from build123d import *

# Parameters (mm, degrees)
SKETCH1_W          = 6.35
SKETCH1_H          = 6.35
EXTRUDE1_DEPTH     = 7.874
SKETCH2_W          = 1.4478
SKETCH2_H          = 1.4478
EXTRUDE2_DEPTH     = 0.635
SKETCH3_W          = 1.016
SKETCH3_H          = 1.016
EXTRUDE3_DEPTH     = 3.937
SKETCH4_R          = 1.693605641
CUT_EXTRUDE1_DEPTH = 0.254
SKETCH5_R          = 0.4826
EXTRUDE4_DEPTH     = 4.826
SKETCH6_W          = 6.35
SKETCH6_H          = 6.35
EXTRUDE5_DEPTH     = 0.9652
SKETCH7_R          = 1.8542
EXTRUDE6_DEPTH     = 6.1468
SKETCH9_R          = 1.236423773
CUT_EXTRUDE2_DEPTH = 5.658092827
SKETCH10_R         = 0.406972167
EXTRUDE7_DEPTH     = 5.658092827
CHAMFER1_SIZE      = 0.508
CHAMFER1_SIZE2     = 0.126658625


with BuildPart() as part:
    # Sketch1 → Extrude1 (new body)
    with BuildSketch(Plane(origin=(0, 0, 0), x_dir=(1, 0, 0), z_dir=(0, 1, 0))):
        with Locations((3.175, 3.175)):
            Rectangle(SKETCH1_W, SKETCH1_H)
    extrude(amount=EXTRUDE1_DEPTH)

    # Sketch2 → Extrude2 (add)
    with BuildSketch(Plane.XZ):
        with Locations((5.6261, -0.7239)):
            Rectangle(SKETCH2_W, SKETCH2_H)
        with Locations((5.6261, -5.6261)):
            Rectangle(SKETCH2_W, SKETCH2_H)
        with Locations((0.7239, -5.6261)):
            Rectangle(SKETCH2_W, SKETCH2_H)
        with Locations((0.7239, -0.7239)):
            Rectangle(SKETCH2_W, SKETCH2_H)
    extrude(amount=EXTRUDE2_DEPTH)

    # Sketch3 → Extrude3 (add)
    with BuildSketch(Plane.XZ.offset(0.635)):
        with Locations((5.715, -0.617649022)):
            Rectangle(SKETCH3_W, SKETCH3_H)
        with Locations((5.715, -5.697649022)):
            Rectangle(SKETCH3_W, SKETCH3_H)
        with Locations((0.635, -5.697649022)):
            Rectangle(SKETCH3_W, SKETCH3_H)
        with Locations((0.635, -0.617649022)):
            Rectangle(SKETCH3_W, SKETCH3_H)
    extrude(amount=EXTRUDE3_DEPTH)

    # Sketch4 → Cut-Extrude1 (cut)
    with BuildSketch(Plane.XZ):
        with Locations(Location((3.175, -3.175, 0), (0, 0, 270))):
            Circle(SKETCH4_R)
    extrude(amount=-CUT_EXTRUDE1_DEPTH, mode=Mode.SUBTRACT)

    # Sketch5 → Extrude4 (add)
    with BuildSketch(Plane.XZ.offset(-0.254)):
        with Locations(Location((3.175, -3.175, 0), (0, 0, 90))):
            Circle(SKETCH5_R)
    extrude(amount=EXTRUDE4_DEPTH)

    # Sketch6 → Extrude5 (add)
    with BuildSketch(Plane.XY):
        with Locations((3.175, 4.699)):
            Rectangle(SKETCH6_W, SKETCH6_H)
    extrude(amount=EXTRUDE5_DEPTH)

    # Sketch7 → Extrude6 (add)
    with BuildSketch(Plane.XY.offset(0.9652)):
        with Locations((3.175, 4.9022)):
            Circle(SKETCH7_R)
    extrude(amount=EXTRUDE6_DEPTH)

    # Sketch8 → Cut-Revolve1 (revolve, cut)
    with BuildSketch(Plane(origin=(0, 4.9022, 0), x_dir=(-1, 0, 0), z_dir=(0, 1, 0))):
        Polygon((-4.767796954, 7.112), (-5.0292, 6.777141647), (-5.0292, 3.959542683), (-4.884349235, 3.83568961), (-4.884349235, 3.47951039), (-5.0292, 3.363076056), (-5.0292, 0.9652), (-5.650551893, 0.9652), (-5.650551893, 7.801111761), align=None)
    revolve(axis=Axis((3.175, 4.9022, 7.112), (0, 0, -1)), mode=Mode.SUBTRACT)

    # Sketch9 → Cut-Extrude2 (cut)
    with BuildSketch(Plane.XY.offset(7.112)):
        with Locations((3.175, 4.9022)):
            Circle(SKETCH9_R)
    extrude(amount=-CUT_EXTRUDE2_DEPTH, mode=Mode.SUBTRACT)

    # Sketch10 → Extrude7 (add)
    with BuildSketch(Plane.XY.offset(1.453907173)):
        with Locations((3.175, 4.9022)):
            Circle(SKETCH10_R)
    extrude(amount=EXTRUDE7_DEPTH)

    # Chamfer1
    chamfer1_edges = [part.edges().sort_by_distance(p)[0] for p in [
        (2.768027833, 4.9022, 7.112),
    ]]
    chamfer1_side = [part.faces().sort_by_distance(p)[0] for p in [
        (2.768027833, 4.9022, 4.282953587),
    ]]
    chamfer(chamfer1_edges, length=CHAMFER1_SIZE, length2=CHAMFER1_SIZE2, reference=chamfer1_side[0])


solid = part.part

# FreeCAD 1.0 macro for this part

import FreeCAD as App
import Part
import Sketcher
Q = App.Units.Quantity


def edges_at(feature, points):
    """Names of the edges that pass closest to the given points."""
    edges = feature.Shape.Edges
    near = lambda p: min(range(len(edges)), key=lambda i: edges[i].distToShape(Part.Vertex(*p))[0])
    return sorted({f"Edge{near(p) + 1}" for p in points})

doc = App.newDocument("Part")
body = doc.addObject("PartDesign::Body", "Body")

sketch1 = body.newObject("Sketcher::SketchObject", "Sketch")
sketch1.AttachmentSupport = (doc.getObject("XZ_Plane"), [""])
sketch1.MapMode = "FlatFace"
sketch1.addGeometry([
    Part.LineSegment(App.Vector(0, -6, 0), App.Vector(0, 0, 0)),
    Part.LineSegment(App.Vector(0, 0, 0), App.Vector(6, 0, 0)),
    Part.LineSegment(App.Vector(6, 0, 0), App.Vector(6, -6, 0)),
    Part.LineSegment(App.Vector(6, -6, 0), App.Vector(0, -6, 0)),
], False)
sketch1.addConstraint([
    Sketcher.Constraint("Coincident", 0, 2, 1, 1),
    Sketcher.Constraint("Coincident", 1, 2, 2, 1),
    Sketcher.Constraint("Coincident", 2, 2, 3, 1),
    Sketcher.Constraint("Coincident", 3, 2, 0, 1),
    Sketcher.Constraint("Vertical", 0),
    Sketcher.Constraint("Horizontal", 1),
    Sketcher.Constraint("Vertical", 2),
    Sketcher.Constraint("Horizontal", 3),
    Sketcher.Constraint("Coincident", 0, 2, -1, 1),
    Sketcher.Constraint("Equal", 3, 0),
    Sketcher.Constraint("DistanceX", 1, 1, 1, 2, Q("0.25 in")),
])
pad1 = body.newObject("PartDesign::Pad", "Pad")
pad1.Profile = sketch1
pad1.Length = Q("0.31 in")
pad1.Reversed = True

sketch2 = body.newObject("Sketcher::SketchObject", "Sketch001")
sketch2.AttachmentSupport = (doc.getObject("XZ_Plane"), [""])
sketch2.MapMode = "FlatFace"
sketch2.addGeometry([
    Part.LineSegment(App.Vector(4.9, 0, 0), App.Vector(4.9, -1.4, 0)),
    Part.LineSegment(App.Vector(4.9, -1.4, 0), App.Vector(6.3, -1.4, 0)),
    Part.LineSegment(App.Vector(6.3, -1.4, 0), App.Vector(6.3, 0, 0)),
    Part.LineSegment(App.Vector(6.3, 0, 0), App.Vector(4.9, 0, 0)),
    Part.LineSegment(App.Vector(4.9, -4.9, 0), App.Vector(4.9, -6.3, 0)),
    Part.LineSegment(App.Vector(4.9, -6.3, 0), App.Vector(6.3, -6.3, 0)),
    Part.LineSegment(App.Vector(6.3, -6.3, 0), App.Vector(6.3, -4.9, 0)),
    Part.LineSegment(App.Vector(6.3, -4.9, 0), App.Vector(4.9, -4.9, 0)),
    Part.LineSegment(App.Vector(0, -4.9, 0), App.Vector(0, -6.3, 0)),
    Part.LineSegment(App.Vector(0, -6.3, 0), App.Vector(1.4, -6.3, 0)),
    Part.LineSegment(App.Vector(1.4, -6.3, 0), App.Vector(1.4, -4.9, 0)),
    Part.LineSegment(App.Vector(1.4, -4.9, 0), App.Vector(0, -4.9, 0)),
    Part.LineSegment(App.Vector(0, 0, 0), App.Vector(0, -1.4, 0)),
    Part.LineSegment(App.Vector(0, -1.4, 0), App.Vector(1.4, -1.4, 0)),
    Part.LineSegment(App.Vector(1.4, -1.4, 0), App.Vector(1.4, 0, 0)),
    Part.LineSegment(App.Vector(1.4, 0, 0), App.Vector(0, 0, 0)),
], False)
sketch2.addConstraint([
    Sketcher.Constraint("Coincident", 0, 2, 1, 1),
    Sketcher.Constraint("Coincident", 1, 2, 2, 1),
    Sketcher.Constraint("Coincident", 2, 2, 3, 1),
    Sketcher.Constraint("Coincident", 3, 2, 0, 1),
    Sketcher.Constraint("Coincident", 4, 2, 5, 1),
    Sketcher.Constraint("Coincident", 5, 2, 6, 1),
    Sketcher.Constraint("Coincident", 6, 2, 7, 1),
    Sketcher.Constraint("Coincident", 7, 2, 4, 1),
    Sketcher.Constraint("Coincident", 8, 2, 9, 1),
    Sketcher.Constraint("Coincident", 9, 2, 10, 1),
    Sketcher.Constraint("Coincident", 10, 2, 11, 1),
    Sketcher.Constraint("Coincident", 11, 2, 8, 1),
    Sketcher.Constraint("Coincident", 12, 2, 13, 1),
    Sketcher.Constraint("Coincident", 13, 2, 14, 1),
    Sketcher.Constraint("Coincident", 14, 2, 15, 1),
    Sketcher.Constraint("Coincident", 15, 2, 12, 1),
    Sketcher.Constraint("Vertical", 0),
    Sketcher.Constraint("Horizontal", 1),
    Sketcher.Constraint("Vertical", 2),
    Sketcher.Constraint("Horizontal", 3),
    Sketcher.Constraint("Vertical", 4),
    Sketcher.Constraint("Horizontal", 5),
    Sketcher.Constraint("Vertical", 6),
    Sketcher.Constraint("Horizontal", 7),
    Sketcher.Constraint("Vertical", 8),
    Sketcher.Constraint("Horizontal", 9),
    Sketcher.Constraint("Vertical", 10),
    Sketcher.Constraint("Horizontal", 11),
    Sketcher.Constraint("Vertical", 12),
    Sketcher.Constraint("Horizontal", 13),
    Sketcher.Constraint("Vertical", 14),
    Sketcher.Constraint("Horizontal", 15),
    Sketcher.Constraint("Coincident", 15, 2, -1, 1),
    Sketcher.Constraint("PointOnObject", 2, 2, -1),
    Sketcher.Constraint("PointOnObject", 8, 2, -2),
    Sketcher.Constraint("Horizontal", 5, 2, 8, 2),
    Sketcher.Constraint("Horizontal", 7, 2, 10, 2),
    Sketcher.Constraint("Horizontal", 1, 2, 12, 2),
    Sketcher.Constraint("Vertical", 3, 2, 4, 2),
    Sketcher.Constraint("Vertical", 2, 2, 5, 2),
    Sketcher.Constraint("Vertical", 10, 2, 13, 2),
    Sketcher.Constraint("Equal", 7, 9),
    Sketcher.Constraint("Equal", 15, 0),
    Sketcher.Constraint("Equal", 2, 4),
    Sketcher.Constraint("DistanceX", 1, 1, 1, 2, Q("0.057 in")),
    Sketcher.Constraint("DistanceX", -1, 1, 1, 2, Q("0.25 in")),
    Sketcher.Constraint("DistanceY", 4, 2, -1, 1, Q("0.25 in")),
])
pad2 = body.newObject("PartDesign::Pad", "Pad001")
pad2.Profile = sketch2
pad2.Length = Q("0.025 in")

sketch3 = body.newObject("Sketcher::SketchObject", "Sketch002")
sketch3.AttachmentSupport = (doc.getObject("XZ_Plane"), [""])
sketch3.MapMode = "FlatFace"
sketch3.AttachmentOffset = App.Placement(App.Vector(0, 0, 0.025 * 25.4), App.Rotation())
sketch3.addGeometry([
    Part.LineSegment(App.Vector(5.2, -0.1, 0), App.Vector(5.2, -1.1, 0)),
    Part.LineSegment(App.Vector(5.2, -1.1, 0), App.Vector(6.2, -1.1, 0)),
    Part.LineSegment(App.Vector(6.2, -1.1, 0), App.Vector(6.2, -0.1, 0)),
    Part.LineSegment(App.Vector(6.2, -0.1, 0), App.Vector(5.2, -0.1, 0)),
    Part.LineSegment(App.Vector(5.2, -5.2, 0), App.Vector(5.2, -6.2, 0)),
    Part.LineSegment(App.Vector(5.2, -6.2, 0), App.Vector(6.2, -6.2, 0)),
    Part.LineSegment(App.Vector(6.2, -6.2, 0), App.Vector(6.2, -5.2, 0)),
    Part.LineSegment(App.Vector(6.2, -5.2, 0), App.Vector(5.2, -5.2, 0)),
    Part.LineSegment(App.Vector(0.1, -5.2, 0), App.Vector(0.1, -6.2, 0)),
    Part.LineSegment(App.Vector(0.1, -6.2, 0), App.Vector(1.1, -6.2, 0)),
    Part.LineSegment(App.Vector(1.1, -6.2, 0), App.Vector(1.1, -5.2, 0)),
    Part.LineSegment(App.Vector(1.1, -5.2, 0), App.Vector(0.1, -5.2, 0)),
    Part.LineSegment(App.Vector(0.1, -0.1, 0), App.Vector(0.1, -1.1, 0)),
    Part.LineSegment(App.Vector(0.1, -1.1, 0), App.Vector(1.1, -1.1, 0)),
    Part.LineSegment(App.Vector(1.1, -1.1, 0), App.Vector(1.1, -0.1, 0)),
    Part.LineSegment(App.Vector(1.1, -0.1, 0), App.Vector(0.1, -0.1, 0)),
], False)
sketch3.addConstraint([
    Sketcher.Constraint("Coincident", 0, 2, 1, 1),
    Sketcher.Constraint("Coincident", 1, 2, 2, 1),
    Sketcher.Constraint("Coincident", 2, 2, 3, 1),
    Sketcher.Constraint("Coincident", 3, 2, 0, 1),
    Sketcher.Constraint("Coincident", 4, 2, 5, 1),
    Sketcher.Constraint("Coincident", 5, 2, 6, 1),
    Sketcher.Constraint("Coincident", 6, 2, 7, 1),
    Sketcher.Constraint("Coincident", 7, 2, 4, 1),
    Sketcher.Constraint("Coincident", 8, 2, 9, 1),
    Sketcher.Constraint("Coincident", 9, 2, 10, 1),
    Sketcher.Constraint("Coincident", 10, 2, 11, 1),
    Sketcher.Constraint("Coincident", 11, 2, 8, 1),
    Sketcher.Constraint("Coincident", 12, 2, 13, 1),
    Sketcher.Constraint("Coincident", 13, 2, 14, 1),
    Sketcher.Constraint("Coincident", 14, 2, 15, 1),
    Sketcher.Constraint("Coincident", 15, 2, 12, 1),
    Sketcher.Constraint("Vertical", 0),
    Sketcher.Constraint("Horizontal", 1),
    Sketcher.Constraint("Vertical", 2),
    Sketcher.Constraint("Horizontal", 3),
    Sketcher.Constraint("Vertical", 4),
    Sketcher.Constraint("Horizontal", 5),
    Sketcher.Constraint("Vertical", 6),
    Sketcher.Constraint("Horizontal", 7),
    Sketcher.Constraint("Vertical", 8),
    Sketcher.Constraint("Horizontal", 9),
    Sketcher.Constraint("Vertical", 10),
    Sketcher.Constraint("Horizontal", 11),
    Sketcher.Constraint("Vertical", 12),
    Sketcher.Constraint("Horizontal", 13),
    Sketcher.Constraint("Vertical", 14),
    Sketcher.Constraint("Horizontal", 15),
    Sketcher.Constraint("Horizontal", 5, 2, 8, 2),
    Sketcher.Constraint("Horizontal", 7, 2, 10, 2),
    Sketcher.Constraint("Horizontal", 1, 2, 12, 2),
    Sketcher.Constraint("Horizontal", 3, 2, 14, 2),
    Sketcher.Constraint("Vertical", 3, 2, 4, 2),
    Sketcher.Constraint("Vertical", 2, 2, 5, 2),
    Sketcher.Constraint("Vertical", 11, 2, 12, 2),
    Sketcher.Constraint("Vertical", 10, 2, 13, 2),
    Sketcher.Constraint("Equal", 7, 9),
    Sketcher.Constraint("Equal", 15, 0),
    Sketcher.Constraint("Equal", 2, 4),
    Sketcher.Constraint("DistanceX", 1, 1, 1, 2, Q("0.04 in")),
    Sketcher.Constraint("DistanceY", 4, 2, 0, 2, Q("0.2 in")),
    Sketcher.Constraint("DistanceX", 8, 2, 4, 2, Q("0.2 in")),
    Sketcher.Constraint("DistanceX", -1, 1, 0, 2, Q("0.205 in")),
    Sketcher.Constraint("DistanceY", 0, 2, -1, 1, 1.125649),
])
pad3 = body.newObject("PartDesign::Pad", "Pad002")
pad3.Profile = sketch3
pad3.Length = Q("0.155 in")

sketch4 = body.newObject("Sketcher::SketchObject", "Sketch003")
sketch4.AttachmentSupport = (doc.getObject("XZ_Plane"), [""])
sketch4.MapMode = "FlatFace"
sketch4.addGeometry(Part.Circle(App.Vector(3.2, -3.2, 0), App.Vector(0, 0, 1), 1.7), False)
sketch4.addConstraint([
    Sketcher.Constraint("Diameter", 0, 3.387211),
    Sketcher.Constraint("DistanceX", -1, 1, 0, 3, Q("0.125 in")),
    Sketcher.Constraint("DistanceY", 0, 3, -1, 1, Q("0.125 in")),
])
pocket1 = body.newObject("PartDesign::Pocket", "Pocket")
pocket1.Profile = sketch4
pocket1.Length = Q("0.01 in")

sketch5 = body.newObject("Sketcher::SketchObject", "Sketch004")
sketch5.AttachmentSupport = (doc.getObject("XZ_Plane"), [""])
sketch5.MapMode = "FlatFace"
sketch5.AttachmentOffset = App.Placement(App.Vector(0, 0, -0.01 * 25.4), App.Rotation())
sketch5.addGeometry(Part.Circle(App.Vector(3.17, -3.17, 0), App.Vector(0, 0, 1), 0.48), False)
sketch5.addConstraint([
    Sketcher.Constraint("Diameter", 0, Q("0.038 in")),
    Sketcher.Constraint("DistanceX", -1, 1, 0, 3, Q("0.125 in")),
    Sketcher.Constraint("DistanceY", 0, 3, -1, 1, Q("0.125 in")),
])
pad4 = body.newObject("PartDesign::Pad", "Pad003")
pad4.Profile = sketch5
pad4.Length = Q("0.19 in")

sketch6 = body.newObject("Sketcher::SketchObject", "Sketch005")
sketch6.AttachmentSupport = (doc.getObject("XY_Plane"), [""])
sketch6.MapMode = "FlatFace"
sketch6.addGeometry([
    Part.LineSegment(App.Vector(0, 8, 0), App.Vector(0, 2, 0)),
    Part.LineSegment(App.Vector(0, 2, 0), App.Vector(6, 2, 0)),
    Part.LineSegment(App.Vector(6, 2, 0), App.Vector(6, 8, 0)),
    Part.LineSegment(App.Vector(6, 8, 0), App.Vector(0, 8, 0)),
], False)
sketch6.addConstraint([
    Sketcher.Constraint("Coincident", 0, 2, 1, 1),
    Sketcher.Constraint("Coincident", 1, 2, 2, 1),
    Sketcher.Constraint("Coincident", 2, 2, 3, 1),
    Sketcher.Constraint("Coincident", 3, 2, 0, 1),
    Sketcher.Constraint("Vertical", 0),
    Sketcher.Constraint("Horizontal", 1),
    Sketcher.Constraint("Vertical", 2),
    Sketcher.Constraint("Horizontal", 3),
    Sketcher.Constraint("PointOnObject", 0, 2, -2),
    Sketcher.Constraint("Equal", 3, 0),
    Sketcher.Constraint("DistanceX", 1, 1, 1, 2, Q("0.25 in")),
    Sketcher.Constraint("DistanceY", -1, 1, 0, 2, Q("0.06 in")),
])
pad5 = body.newObject("PartDesign::Pad", "Pad004")
pad5.Profile = sketch6
pad5.Length = Q("0.038 in")

sketch7 = body.newObject("Sketcher::SketchObject", "Sketch006")
sketch7.AttachmentSupport = (doc.getObject("XY_Plane"), [""])
sketch7.MapMode = "FlatFace"
sketch7.AttachmentOffset = App.Placement(App.Vector(0, 0, 0.038 * 25.4), App.Rotation())
sketch7.addGeometry(Part.Circle(App.Vector(3.2, 4.9, 0), App.Vector(0, 0, 1), 1.9), False)
sketch7.addConstraint([
    Sketcher.Constraint("Diameter", 0, Q("0.146 in")),
    Sketcher.Constraint("DistanceX", -1, 1, 0, 3, Q("0.125 in")),
    Sketcher.Constraint("DistanceY", -1, 1, 0, 3, Q("0.193 in")),
])
pad6 = body.newObject("PartDesign::Pad", "Pad005")
pad6.Profile = sketch7
pad6.Length = Q("0.242 in")

sketch8 = body.newObject("Sketcher::SketchObject", "Sketch007")
sketch8.AttachmentSupport = (doc.getObject("XZ_Plane"), [""])
sketch8.MapMode = "FlatFace"
sketch8.AttachmentOffset = App.Placement(App.Vector(0, 0, -0.193 * 25.4), App.Rotation())
sketch8.addGeometry([
    Part.LineSegment(App.Vector(5.03, 6.78, 0), App.Vector(4.77, 7.11, 0)),
    Part.LineSegment(App.Vector(4.77, 7.11, 0), App.Vector(5.65, 7.8, 0)),
    Part.LineSegment(App.Vector(5.65, 7.8, 0), App.Vector(5.65, 0.97, 0)),
    Part.LineSegment(App.Vector(5.65, 0.97, 0), App.Vector(5.03, 0.97, 0)),
    Part.LineSegment(App.Vector(5.03, 0.97, 0), App.Vector(5.03, 3.36, 0)),
    Part.LineSegment(App.Vector(5.03, 3.36, 0), App.Vector(4.88, 3.48, 0)),
    Part.LineSegment(App.Vector(4.88, 3.48, 0), App.Vector(4.88, 3.84, 0)),
    Part.LineSegment(App.Vector(4.88, 3.84, 0), App.Vector(5.03, 3.96, 0)),
    Part.LineSegment(App.Vector(5.03, 3.96, 0), App.Vector(5.03, 6.78, 0)),
], False)
sketch8.addGeometry(Part.LineSegment(App.Vector(3.17, 7.8, 0), App.Vector(3.17, 0.97, 0)), True)
sketch8.addConstraint([
    Sketcher.Constraint("Coincident", 0, 2, 1, 1),
    Sketcher.Constraint("Coincident", 1, 2, 2, 1),
    Sketcher.Constraint("Coincident", 2, 2, 3, 1),
    Sketcher.Constraint("Coincident", 3, 2, 4, 1),
    Sketcher.Constraint("Coincident", 4, 2, 5, 1),
    Sketcher.Constraint("Coincident", 5, 2, 6, 1),
    Sketcher.Constraint("Coincident", 6, 2, 7, 1),
    Sketcher.Constraint("Coincident", 7, 2, 8, 1),
    Sketcher.Constraint("Coincident", 8, 2, 0, 1),
    Sketcher.Constraint("Vertical", 2),
    Sketcher.Constraint("Horizontal", 3),
    Sketcher.Constraint("Vertical", 4),
    Sketcher.Constraint("Vertical", 6),
    Sketcher.Constraint("Vertical", 8),
    Sketcher.Constraint("Vertical", 9),
    Sketcher.Constraint("Perpendicular", 0, 1),
    Sketcher.Constraint("Horizontal", 1, 2, 9, 1),
    Sketcher.Constraint("Horizontal", 3, 2, 9, 2),
    Sketcher.Constraint("Vertical", 4, 2, 7, 2),
    Sketcher.Constraint("DistanceY", -1, 1, 0, 2, Q("0.28 in")),
    Sketcher.Constraint("DistanceY", -1, 1, 2, 2, Q("0.038 in")),
    Sketcher.Constraint("DistanceX", -1, 1, 3, 2, Q("0.198 in")),
    Sketcher.Constraint("DistanceX", -1, 1, 9, 1, Q("0.125 in")),
    Sketcher.Constraint("DistanceY", 8, 1, 8, 2, 2.817599),
    Sketcher.Constraint("DistanceX", 3, 2, 3, 1, 0.621352),
    Sketcher.Constraint("DistanceY", 2, 2, 2, 1, 6.835912),
    Sketcher.Constraint("DistanceY", 6, 1, 6, 2, 0.356179),
    Sketcher.Constraint("DistanceY", 5, 2, 1, 2, 4.321601),
    Sketcher.Constraint("Distance", 1, 1.11988),
    Sketcher.Constraint("Distance", 7, 0.190582),
    Sketcher.Constraint("DistanceY", 4, 1, 4, 2, 2.397876),
])
groove = body.newObject("PartDesign::Groove", "Groove")
groove.Profile = sketch8
groove.ReferenceAxis = (sketch8, ["Axis0"])
groove.Angle = 360

sketch9 = body.newObject("Sketcher::SketchObject", "Sketch008")
sketch9.AttachmentSupport = (doc.getObject("XY_Plane"), [""])
sketch9.MapMode = "FlatFace"
sketch9.AttachmentOffset = App.Placement(App.Vector(0, 0, 0.28 * 25.4), App.Rotation())
sketch9.addGeometry(Part.Circle(App.Vector(3.2, 4.9, 0), App.Vector(0, 0, 1), 1.2), False)
sketch9.addConstraint([
    Sketcher.Constraint("DistanceX", -1, 1, 0, 3, Q("0.125 in")),
    Sketcher.Constraint("DistanceY", -1, 1, 0, 3, Q("0.193 in")),
    Sketcher.Constraint("Diameter", 0, 2.472848),
])
pocket2 = body.newObject("PartDesign::Pocket", "Pocket001")
pocket2.Profile = sketch9
pocket2.Length = 5.658093

sketch10 = body.newObject("Sketcher::SketchObject", "Sketch009")
sketch10.AttachmentSupport = (doc.getObject("XY_Plane"), [""])
sketch10.MapMode = "FlatFace"
sketch10.AttachmentOffset = App.Placement(App.Vector(0, 0, 1.453907), App.Rotation())
sketch10.addGeometry(Part.Circle(App.Vector(3.17, 4.9, 0), App.Vector(0, 0, 1), 0.41), False)
sketch10.addConstraint([
    Sketcher.Constraint("DistanceX", -1, 1, 0, 3, Q("0.125 in")),
    Sketcher.Constraint("DistanceY", -1, 1, 0, 3, Q("0.193 in")),
    Sketcher.Constraint("Diameter", 0, 0.813944),
])
pad7 = body.newObject("PartDesign::Pad", "Pad006")
pad7.Profile = sketch10
pad7.Length = 5.658093
doc.recompute()

chamfer = body.newObject("PartDesign::Chamfer", "Chamfer")
chamfer.Base = (pad7, edges_at(pad7, [(2.768, 4.902, 7.112)]))
chamfer.ChamferType = "Two distances"
chamfer.Size = Q("0.02 in")
chamfer.Size2 = 0.126659

doc.recompute()
